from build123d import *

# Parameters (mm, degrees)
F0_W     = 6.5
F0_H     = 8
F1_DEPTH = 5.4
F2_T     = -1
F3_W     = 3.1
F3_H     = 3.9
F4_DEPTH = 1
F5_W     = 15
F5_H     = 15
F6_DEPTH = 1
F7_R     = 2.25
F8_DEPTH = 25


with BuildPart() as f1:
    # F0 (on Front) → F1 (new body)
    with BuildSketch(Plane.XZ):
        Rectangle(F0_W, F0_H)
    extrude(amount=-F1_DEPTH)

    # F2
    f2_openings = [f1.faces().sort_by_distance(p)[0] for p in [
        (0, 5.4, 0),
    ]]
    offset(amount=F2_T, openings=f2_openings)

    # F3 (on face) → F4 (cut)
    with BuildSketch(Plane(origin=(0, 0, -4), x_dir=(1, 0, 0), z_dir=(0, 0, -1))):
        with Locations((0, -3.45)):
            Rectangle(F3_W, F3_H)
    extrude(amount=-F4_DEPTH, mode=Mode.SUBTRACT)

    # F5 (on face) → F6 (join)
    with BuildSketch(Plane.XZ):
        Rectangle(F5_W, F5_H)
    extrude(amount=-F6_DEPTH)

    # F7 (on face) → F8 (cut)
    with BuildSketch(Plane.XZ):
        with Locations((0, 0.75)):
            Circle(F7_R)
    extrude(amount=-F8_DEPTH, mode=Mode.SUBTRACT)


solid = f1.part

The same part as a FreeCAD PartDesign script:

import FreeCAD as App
import Part
import Sketcher
from FreeCAD import Vector


def faces_at(feature, points):
    """Names of the faces that lie closest to the given points."""
    faces = feature.Shape.Faces
    near = lambda p: min(range(len(faces)), key=lambda i: faces[i].distToShape(Part.Vertex(*p))[0])
    return sorted({f"Face{near(p) + 1}" for p in points})

doc = App.newDocument("Part")
body = doc.addObject("PartDesign::Body", "Body")

# Sketch on XZ plane
sketch1 = body.newObject("Sketcher::SketchObject", "Sketch")
sketch1.AttachmentSupport = (doc.getObject("XZ_Plane"), [""])
sketch1.MapMode = "FlatFace"
sketch1.addGeometry([
    Part.LineSegment(Vector(-3, 4, 0), Vector(-3, -4, 0)),
    Part.LineSegment(Vector(-3, -4, 0), Vector(3, -4, 0)),
    Part.LineSegment(Vector(3, -4, 0), Vector(3, 4, 0)),
    Part.LineSegment(Vector(3, 4, 0), Vector(-3, 4, 0)),
], False)
sketch1.addConstraint([
    Sketcher.Constraint("Coincident", 0, 2, 1, 1),
    Sketcher.Constraint("Coincident", 1, 2, 2, 1),
    Sketcher.Constraint("Coincident", 2, 2, 3, 1),
    Sketcher.Constraint("Coincident", 3, 2, 0, 1),
    Sketcher.Constraint("Vertical", 0),
    Sketcher.Constraint("Horizontal", 1),
    Sketcher.Constraint("Vertical", 2),
    Sketcher.Constraint("Horizontal", 3),
    Sketcher.Constraint("Symmetric", 0, 2, 2, 2, -1, 1),
    Sketcher.Constraint("DistanceY", 0, 2, 0, 1, 8.0),
    Sketcher.Constraint("DistanceX", 1, 1, 1, 2, 6.5),
])
pad1 = body.newObject("PartDesign::Pad", "Pad")
pad1.Profile = sketch1
pad1.Length = 5.4
pad1.Reversed = True
doc.recompute()

thickness = body.newObject("PartDesign::Thickness", "Thickness")
thickness.Base = (pad1, faces_at(pad1, [(0, 5.4, 0)]))
thickness.Value = 1
thickness.Reversed = True
thickness.Join = "Arc"

# Sketch on XY plane
sketch2 = body.newObject("Sketcher::SketchObject", "Sketch001")
sketch2.AttachmentSupport = (doc.getObject("XY_Plane"), [""])
sketch2.MapMode = "FlatFace"
sketch2.AttachmentOffset = App.Placement(Vector(0, 0, -4), App.Rotation())
sketch2.addGeometry([
    Part.LineSegment(Vector(-1.6, 1.5, 0), Vector(-1.6, 5.4, 0)),
    Part.LineSegment(Vector(-1.6, 5.4, 0), Vector(1.6, 5.4, 0)),
    Part.LineSegment(Vector(1.6, 5.4, 0), Vector(1.6, 1.5, 0)),
    Part.LineSegment(Vector(1.6, 1.5, 0), Vector(-1.6, 1.5, 0)),
], False)
sketch2.addConstraint([
    Sketcher.Constraint("Coincident", 0, 2, 1, 1),
    Sketcher.Constraint("Coincident", 1, 2, 2, 1),
    Sketcher.Constraint("Coincident", 2, 2, 3, 1),
    Sketcher.Constraint("Coincident", 3, 2, 0, 1),
    Sketcher.Constraint("Vertical", 0),
    Sketcher.Constraint("Horizontal", 1),
    Sketcher.Constraint("Vertical", 2),
    Sketcher.Constraint("Horizontal", 3),
    Sketcher.Constraint("DistanceX", 1, 1, 1, 2, 3.1),
    Sketcher.Constraint("DistanceY", 0, 1, 0, 2, 3.9),
    Sketcher.Constraint("DistanceY", -1, 1, 0, 2, 5.4),
    Sketcher.Constraint("DistanceX", 0, 2, -1, 1, 1.55),
])
pocket1 = body.newObject("PartDesign::Pocket", "Pocket")
pocket1.Profile = sketch2
pocket1.Length = 1
pocket1.Reversed = True

# Sketch on XZ plane
sketch3 = body.newObject("Sketcher::SketchObject", "Sketch002")
sketch3.AttachmentSupport = (doc.getObject("XZ_Plane"), [""])
sketch3.MapMode = "FlatFace"
sketch3.addGeometry([
    Part.LineSegment(Vector(-8, 8, 0), Vector(-8, -8, 0)),
    Part.LineSegment(Vector(-8, -8, 0), Vector(8, -8, 0)),
    Part.LineSegment(Vector(8, -8, 0), Vector(8, 8, 0)),
    Part.LineSegment(Vector(8, 8, 0), Vector(-8, 8, 0)),
], False)
sketch3.addConstraint([
    Sketcher.Constraint("Coincident", 0, 2, 1, 1),
    Sketcher.Constraint("Coincident", 1, 2, 2, 1),
    Sketcher.Constraint("Coincident", 2, 2, 3, 1),
    Sketcher.Constraint("Coincident", 3, 2, 0, 1),
    Sketcher.Constraint("Vertical", 0),
    Sketcher.Constraint("Horizontal", 1),
    Sketcher.Constraint("Vertical", 2),
    Sketcher.Constraint("Horizontal", 3),
    Sketcher.Constraint("Symmetric", 0, 2, 2, 2, -1, 1),
    Sketcher.Constraint("Equal", 3, 0),
    Sketcher.Constraint("DistanceX", 1, 1, 1, 2, 15.0),
])
pad2 = body.newObject("PartDesign::Pad", "Pad001")
pad2.Profile = sketch3
pad2.Length = 1
pad2.Reversed = True

# Sketch on XZ plane
sketch4 = body.newObject("Sketcher::SketchObject", "Sketch003")
sketch4.AttachmentSupport = (doc.getObject("XZ_Plane"), [""])
sketch4.MapMode = "FlatFace"
sketch4.addGeometry(Part.Circle(Vector(0, 0.8, 0), Vector(0, 0, 1), 2.2), False)
sketch4.addConstraint([
    Sketcher.Constraint("PointOnObject", 0, 3, -2),
    Sketcher.Constraint("Diameter", 0, 4.5),
    Sketcher.Constraint("DistanceY", -1, 1, 0, 3, 0.75),
])
pocket2 = body.newObject("PartDesign::Pocket", "Pocket001")
pocket2.Profile = sketch4
pocket2.Length = 25

doc.recompute()
